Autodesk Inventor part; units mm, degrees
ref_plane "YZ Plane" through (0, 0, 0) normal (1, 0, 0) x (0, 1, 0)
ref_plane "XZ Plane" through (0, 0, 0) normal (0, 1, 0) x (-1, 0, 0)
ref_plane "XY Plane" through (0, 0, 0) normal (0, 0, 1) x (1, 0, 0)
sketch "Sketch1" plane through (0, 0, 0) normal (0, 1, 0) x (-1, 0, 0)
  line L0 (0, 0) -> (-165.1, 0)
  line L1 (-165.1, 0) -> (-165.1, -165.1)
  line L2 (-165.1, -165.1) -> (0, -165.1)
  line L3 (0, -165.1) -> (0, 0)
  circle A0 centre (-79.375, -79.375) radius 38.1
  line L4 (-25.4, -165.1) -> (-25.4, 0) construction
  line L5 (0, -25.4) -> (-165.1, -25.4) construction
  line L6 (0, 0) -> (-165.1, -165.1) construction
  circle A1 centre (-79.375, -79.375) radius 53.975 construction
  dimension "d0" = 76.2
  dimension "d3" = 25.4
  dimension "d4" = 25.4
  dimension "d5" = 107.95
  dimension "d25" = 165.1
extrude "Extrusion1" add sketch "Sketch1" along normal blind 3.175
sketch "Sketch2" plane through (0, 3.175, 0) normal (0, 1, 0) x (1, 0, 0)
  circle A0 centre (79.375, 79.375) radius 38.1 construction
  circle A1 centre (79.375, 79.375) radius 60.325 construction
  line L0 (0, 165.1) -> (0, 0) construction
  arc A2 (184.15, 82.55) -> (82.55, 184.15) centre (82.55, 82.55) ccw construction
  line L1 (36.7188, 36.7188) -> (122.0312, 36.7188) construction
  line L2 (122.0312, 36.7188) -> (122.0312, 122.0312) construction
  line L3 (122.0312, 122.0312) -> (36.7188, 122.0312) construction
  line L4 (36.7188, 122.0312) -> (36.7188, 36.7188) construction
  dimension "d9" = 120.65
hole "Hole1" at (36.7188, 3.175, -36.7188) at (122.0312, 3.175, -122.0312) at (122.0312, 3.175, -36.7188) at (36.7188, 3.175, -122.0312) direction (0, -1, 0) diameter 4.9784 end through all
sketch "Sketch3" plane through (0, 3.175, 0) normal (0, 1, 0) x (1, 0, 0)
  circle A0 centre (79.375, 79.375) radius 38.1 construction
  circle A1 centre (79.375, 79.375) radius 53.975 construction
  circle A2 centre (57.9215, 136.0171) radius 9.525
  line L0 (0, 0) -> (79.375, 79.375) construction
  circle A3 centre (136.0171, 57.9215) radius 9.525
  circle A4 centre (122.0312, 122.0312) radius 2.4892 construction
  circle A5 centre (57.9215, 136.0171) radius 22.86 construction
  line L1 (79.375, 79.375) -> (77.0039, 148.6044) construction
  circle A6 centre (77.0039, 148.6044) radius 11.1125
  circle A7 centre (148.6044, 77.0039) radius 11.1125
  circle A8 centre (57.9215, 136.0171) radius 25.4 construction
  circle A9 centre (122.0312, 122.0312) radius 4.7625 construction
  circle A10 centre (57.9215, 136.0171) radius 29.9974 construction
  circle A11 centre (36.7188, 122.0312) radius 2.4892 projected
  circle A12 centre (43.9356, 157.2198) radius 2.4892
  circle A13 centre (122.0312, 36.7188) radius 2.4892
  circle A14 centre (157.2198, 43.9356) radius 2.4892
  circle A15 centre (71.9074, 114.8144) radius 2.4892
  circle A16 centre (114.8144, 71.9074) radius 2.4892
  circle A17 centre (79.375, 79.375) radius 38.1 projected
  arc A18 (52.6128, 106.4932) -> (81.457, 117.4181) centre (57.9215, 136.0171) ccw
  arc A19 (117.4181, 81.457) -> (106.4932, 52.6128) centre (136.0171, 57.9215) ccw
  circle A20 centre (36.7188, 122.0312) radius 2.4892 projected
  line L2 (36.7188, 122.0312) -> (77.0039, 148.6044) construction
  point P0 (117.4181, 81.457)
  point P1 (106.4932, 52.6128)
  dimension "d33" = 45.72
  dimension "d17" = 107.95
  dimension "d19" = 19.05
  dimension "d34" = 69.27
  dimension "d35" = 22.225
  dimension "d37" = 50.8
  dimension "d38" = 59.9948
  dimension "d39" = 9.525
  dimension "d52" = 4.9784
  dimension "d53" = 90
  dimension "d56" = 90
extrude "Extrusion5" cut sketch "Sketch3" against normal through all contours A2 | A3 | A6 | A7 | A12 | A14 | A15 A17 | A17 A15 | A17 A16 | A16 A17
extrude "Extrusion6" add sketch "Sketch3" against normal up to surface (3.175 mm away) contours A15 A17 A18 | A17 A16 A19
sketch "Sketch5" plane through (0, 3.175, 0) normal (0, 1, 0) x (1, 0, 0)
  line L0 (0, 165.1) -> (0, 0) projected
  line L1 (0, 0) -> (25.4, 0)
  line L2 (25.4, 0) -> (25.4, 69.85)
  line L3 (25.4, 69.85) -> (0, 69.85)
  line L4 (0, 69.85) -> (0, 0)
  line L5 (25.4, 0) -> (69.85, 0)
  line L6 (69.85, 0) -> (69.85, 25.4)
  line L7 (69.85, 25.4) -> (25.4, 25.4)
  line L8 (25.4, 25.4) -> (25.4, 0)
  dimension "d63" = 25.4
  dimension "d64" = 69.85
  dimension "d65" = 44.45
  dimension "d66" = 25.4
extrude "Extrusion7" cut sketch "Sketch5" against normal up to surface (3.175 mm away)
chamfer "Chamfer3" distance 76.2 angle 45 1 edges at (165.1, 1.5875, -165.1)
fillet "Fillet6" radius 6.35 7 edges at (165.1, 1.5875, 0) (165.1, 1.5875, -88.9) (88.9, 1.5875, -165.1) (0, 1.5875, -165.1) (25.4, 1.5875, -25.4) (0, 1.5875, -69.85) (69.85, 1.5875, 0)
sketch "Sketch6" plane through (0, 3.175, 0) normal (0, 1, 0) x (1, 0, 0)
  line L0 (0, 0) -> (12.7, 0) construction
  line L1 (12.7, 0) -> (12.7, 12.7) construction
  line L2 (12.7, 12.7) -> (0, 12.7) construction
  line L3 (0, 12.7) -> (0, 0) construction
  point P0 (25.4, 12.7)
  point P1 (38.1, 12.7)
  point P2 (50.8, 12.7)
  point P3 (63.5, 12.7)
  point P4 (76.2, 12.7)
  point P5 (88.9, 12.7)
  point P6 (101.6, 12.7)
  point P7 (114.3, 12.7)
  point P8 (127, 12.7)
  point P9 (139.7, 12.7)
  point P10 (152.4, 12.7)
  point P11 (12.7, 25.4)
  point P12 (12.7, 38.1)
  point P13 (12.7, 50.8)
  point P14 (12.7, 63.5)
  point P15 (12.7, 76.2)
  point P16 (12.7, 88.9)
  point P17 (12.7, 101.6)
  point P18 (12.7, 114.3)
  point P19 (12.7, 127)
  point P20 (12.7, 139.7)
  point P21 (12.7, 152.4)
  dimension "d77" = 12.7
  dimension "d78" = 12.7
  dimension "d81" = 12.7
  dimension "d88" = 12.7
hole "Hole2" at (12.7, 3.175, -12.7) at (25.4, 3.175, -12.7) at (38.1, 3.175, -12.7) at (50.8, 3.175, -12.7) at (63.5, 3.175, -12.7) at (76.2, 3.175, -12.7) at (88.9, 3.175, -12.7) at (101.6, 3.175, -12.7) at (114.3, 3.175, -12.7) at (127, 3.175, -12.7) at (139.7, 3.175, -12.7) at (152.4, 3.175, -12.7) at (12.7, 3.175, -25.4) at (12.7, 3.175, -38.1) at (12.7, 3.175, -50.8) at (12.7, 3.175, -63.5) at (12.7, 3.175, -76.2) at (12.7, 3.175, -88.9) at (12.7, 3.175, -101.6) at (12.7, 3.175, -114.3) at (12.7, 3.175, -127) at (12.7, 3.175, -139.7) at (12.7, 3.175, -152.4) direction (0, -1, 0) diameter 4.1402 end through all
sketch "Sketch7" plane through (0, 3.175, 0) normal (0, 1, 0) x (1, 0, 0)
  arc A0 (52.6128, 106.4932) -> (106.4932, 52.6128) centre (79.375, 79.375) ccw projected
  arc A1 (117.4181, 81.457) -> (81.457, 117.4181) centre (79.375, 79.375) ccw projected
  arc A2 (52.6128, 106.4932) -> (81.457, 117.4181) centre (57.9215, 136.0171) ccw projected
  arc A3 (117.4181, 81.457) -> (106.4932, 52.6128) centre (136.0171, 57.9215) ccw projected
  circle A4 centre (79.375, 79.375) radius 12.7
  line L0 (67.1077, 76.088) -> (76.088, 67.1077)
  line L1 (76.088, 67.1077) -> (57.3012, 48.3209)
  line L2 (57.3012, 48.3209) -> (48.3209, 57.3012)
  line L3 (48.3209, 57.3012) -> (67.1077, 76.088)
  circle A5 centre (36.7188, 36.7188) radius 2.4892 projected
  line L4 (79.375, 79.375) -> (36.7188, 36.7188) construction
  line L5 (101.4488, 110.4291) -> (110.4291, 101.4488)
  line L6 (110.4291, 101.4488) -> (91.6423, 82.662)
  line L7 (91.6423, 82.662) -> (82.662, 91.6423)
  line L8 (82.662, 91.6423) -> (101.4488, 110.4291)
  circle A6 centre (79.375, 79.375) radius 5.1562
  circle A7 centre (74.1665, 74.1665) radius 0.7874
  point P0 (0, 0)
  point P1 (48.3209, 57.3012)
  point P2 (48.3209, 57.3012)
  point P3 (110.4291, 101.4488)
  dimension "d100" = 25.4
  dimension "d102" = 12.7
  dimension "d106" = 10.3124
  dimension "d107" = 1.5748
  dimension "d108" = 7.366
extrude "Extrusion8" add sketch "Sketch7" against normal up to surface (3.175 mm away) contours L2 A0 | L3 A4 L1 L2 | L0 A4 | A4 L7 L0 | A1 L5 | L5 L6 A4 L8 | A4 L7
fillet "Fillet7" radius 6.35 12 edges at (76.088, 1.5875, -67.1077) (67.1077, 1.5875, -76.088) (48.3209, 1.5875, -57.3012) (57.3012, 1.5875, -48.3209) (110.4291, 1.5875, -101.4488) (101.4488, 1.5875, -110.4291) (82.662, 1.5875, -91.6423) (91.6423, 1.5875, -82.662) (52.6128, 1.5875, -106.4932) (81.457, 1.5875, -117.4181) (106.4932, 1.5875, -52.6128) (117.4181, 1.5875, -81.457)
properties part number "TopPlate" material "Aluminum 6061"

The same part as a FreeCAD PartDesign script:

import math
import FreeCAD as App
import Part
import Sketcher
from FreeCAD import Vector
Q = App.Units.Quantity


def edges_at(feature, points):
    """Names of the edges that pass closest to the given points."""
    edges = feature.Shape.Edges
    near = lambda p: min(range(len(edges)), key=lambda i: edges[i].distToShape(Part.Vertex(*p))[0])
    return sorted({f"Edge{near(p) + 1}" for p in points})

doc = App.newDocument("Part")
params = doc.addObject("Spreadsheet::Sheet", "Params")
for row, (alias, value) in enumerate([
    ("sketch1_diameter", "3 in"),
    ("sketch1_width", "6.5 in"),
    ("pad1_length", "0.125 in"),
    ("sketch2_diameter", "0.196 in"),
    ("hole_diameter", "0.196 in"),
    ("sketch3_diameter", "0.75 in"),
    ("sketch3_diameter2", "0.875 in"),
    ("sketch3_diameter3", "0.196 in"),
    ("sketch4_radius", "0.098 in"),
    ("sketch4_radius2", "1.181 in"),
    ("sketch4_radius3", "1.5 in"),
    ("sketch4_height", "0.209 in"),
    ("pad2_length", "0.125 in"),
    ("sketch5_width", "1 in"),
    ("sketch5_width2", "2.75 in"),
    ("pocket2_length", "0.125 in"),
    ("chamfer_size", "3 in"),
    ("fillet_radius", "0.25 in"),
    ("sketch6_diameter", "0.163 in"),
    ("hole2_diameter", "0.163 in"),
    ("sketch7_radius", "0.5 in"),
    ("sketch7_diameter", "0.406 in"),
    ("sketch7_diameter2", "0.062 in"),
    ("sketch7_radius2", "1.5 in"),
    ("sketch7_length", "1.046 in"),
    ("pad3_length", "0.125 in"),
    ("fillet2_radius", "0.25 in"),
], start=1):
    params.set(f"A{row}", alias)
    params.set(f"B{row}", "=" + value)
    params.setAlias(f"B{row}", alias)

body = doc.addObject("PartDesign::Body", "Body")

# Sketch on XZ plane
sketch1 = body.newObject("Sketcher::SketchObject", "Sketch")
sketch1.AttachmentSupport = (doc.getObject("XZ_Plane"), [""])
sketch1.MapMode = "FlatFace"
sketch1.addGeometry([
    Part.LineSegment(Vector(0, -165, 0), Vector(0, 0, 0)),  # 0
    Part.LineSegment(Vector(0, 0, 0), Vector(165, 0, 0)),  # 1
    Part.LineSegment(Vector(165, 0, 0), Vector(165, -165, 0)),  # 2
    Part.LineSegment(Vector(165, -165, 0), Vector(0, -165, 0)),  # 3
    Part.Circle(Vector(79, -79, 0), Vector(0, 0, 1), 38),  # 4
], False)
sketch1.addConstraint([
    Sketcher.Constraint("Coincident", 0, 2, 1, 1),
    Sketcher.Constraint("Coincident", 1, 2, 2, 1),
    Sketcher.Constraint("Coincident", 2, 2, 3, 1),
    Sketcher.Constraint("Coincident", 3, 2, 0, 1),
    Sketcher.Constraint("Vertical", 0),
    Sketcher.Constraint("Horizontal", 1),
    Sketcher.Constraint("Vertical", 2),
    Sketcher.Constraint("Horizontal", 3),
    Sketcher.Constraint("Coincident", 0, 2, -1, 1),
    Sketcher.Constraint("Equal", 3, 0),
    Sketcher.Constraint("Diameter", 4, Q("3 in")),
    Sketcher.Constraint("DistanceX", 1, 1, 1, 2, Q("6.5 in")),
    Sketcher.Constraint("DistanceX", -1, 1, 4, 3, Q("3.125 in")),
    Sketcher.Constraint("DistanceY", 4, 3, -1, 1, Q("3.125 in")),
])
sketch1.setExpression("Constraints[10]", "Params.sketch1_diameter")
sketch1.setExpression("Constraints[11]", "Params.sketch1_width")
pad1 = body.newObject("PartDesign::Pad", "Pad")
pad1.Profile = sketch1
pad1.setExpression("Length", "Params.pad1_length")
pad1.Reversed = True

# Sketch on XZ plane
sketch2 = body.newObject("Sketcher::SketchObject", "Sketch001")
sketch2.AttachmentSupport = (doc.getObject("XZ_Plane"), [""])
sketch2.MapMode = "FlatFace"
sketch2.AttachmentOffset = App.Placement(Vector(0, 0, -0.125 * 25.4), App.Rotation())
sketch2.addGeometry([
    Part.Circle(Vector(36.7, -36.7, 0), Vector(0, 0, 1), 2.5),
    Part.Circle(Vector(122, -122, 0), Vector(0, 0, 1), 2.5),
    Part.Circle(Vector(122, -36.7, 0), Vector(0, 0, 1), 2.5),
    Part.Circle(Vector(36.7, -122, 0), Vector(0, 0, 1), 2.5),
], False)
sketch2.addConstraint([
    Sketcher.Constraint("Equal", 0, 1),
    Sketcher.Constraint("Equal", 1, 2),
    Sketcher.Constraint("Equal", 2, 3),
    Sketcher.Constraint("Horizontal", 0, 3, 2, 3),
    Sketcher.Constraint("Horizontal", 1, 3, 3, 3),
    Sketcher.Constraint("Vertical", 1, 3, 2, 3),
    Sketcher.Constraint("Vertical", 0, 3, 3, 3),
    Sketcher.Constraint("Diameter", 0, Q("0.196 in")),
    Sketcher.Constraint("DistanceX", -1, 1, 0, 3, Q("36.7188 mm")),
    Sketcher.Constraint("DistanceY", 0, 3, -1, 1, Q("36.7188 mm")),
    Sketcher.Constraint("DistanceX", -1, 1, 1, 3, Q("122.0312 mm")),
    Sketcher.Constraint("DistanceY", 1, 3, -1, 1, Q("122.0312 mm")),
])
sketch2.setExpression("Constraints[7]", "Params.sketch2_diameter")
doc.recompute()
hole = body.newObject("PartDesign::Hole", "Hole")
hole.Profile = sketch2
hole.ThreadType = "None"
hole.setExpression("Diameter", "Params.hole_diameter")
hole.DepthType = "ThroughAll"
hole.Reversed = True

# Sketch on XZ plane
sketch3 = body.newObject("Sketcher::SketchObject", "Sketch002")
sketch3.AttachmentSupport = (doc.getObject("XZ_Plane"), [""])
sketch3.MapMode = "FlatFace"
sketch3.AttachmentOffset = App.Placement(Vector(0, 0, -0.125 * 25.4), App.Rotation())
sketch3.addGeometry([
    Part.Circle(Vector(57.9, -136, 0), Vector(0, 0, 1), 9.5),  # 0
    Part.Circle(Vector(136, -57.9, 0), Vector(0, 0, 1), 9.5),  # 1
    Part.Circle(Vector(77, -148.6, 0), Vector(0, 0, 1), 11.1),  # 2
    Part.Circle(Vector(148.6, -77, 0), Vector(0, 0, 1), 11.1),  # 3
    Part.Circle(Vector(43.9, -157.2, 0), Vector(0, 0, 1), 2.5),  # 4
    Part.Circle(Vector(157.2, -43.9, 0), Vector(0, 0, 1), 2.5),  # 5
    Part.Circle(Vector(71.9, -114.8, 0), Vector(0, 0, 1), 2.5),  # 6
    Part.Circle(Vector(114.8, -71.9, 0), Vector(0, 0, 1), 2.5),  # 7
], False)
sketch3.addConstraint([
    Sketcher.Constraint("Equal", 0, 1),
    Sketcher.Constraint("Equal", 2, 3),
    Sketcher.Constraint("Equal", 4, 5),
    Sketcher.Constraint("Equal", 5, 6),
    Sketcher.Constraint("Equal", 6, 7),
    Sketcher.Constraint("Diameter", 0, Q("0.75 in")),
    Sketcher.Constraint("Diameter", 2, Q("0.875 in")),
    Sketcher.Constraint("Diameter", 4, Q("0.196 in")),
    Sketcher.Constraint("DistanceX", 4, 3, 5, 3, Q("4.46 in")),
    Sketcher.Constraint("DistanceY", 4, 3, 5, 3, Q("4.46 in")),
    Sketcher.Constraint("DistanceY", 0, 3, -1, 1, Q("5.355 in")),
    Sketcher.Constraint("DistanceX", -1, 1, 1, 3, Q("5.355 in")),
    Sketcher.Constraint("DistanceX", -1, 1, 6, 3, Q("2.831 in")),
    Sketcher.Constraint("DistanceY", 7, 3, -1, 1, Q("2.831 in")),
    Sketcher.Constraint("DistanceY", 2, 3, 1, 3, Q("3.5702 in")),
    Sketcher.Constraint("DistanceX", 0, 3, 3, 3, Q("3.5702 in")),
    Sketcher.Constraint("DistanceX", 4, 3, 2, 3, Q("1.3019 in")),
    Sketcher.Constraint("DistanceY", 4, 3, 2, 3, Q("0.3392 in")),
    Sketcher.Constraint("DistanceY", 4, 3, 3, 3, Q("3.1581 in")),
    Sketcher.Constraint("DistanceX", 3, 3, 5, 3, Q("0.3392 in")),
    Sketcher.Constraint("DistanceY", 4, 3, 6, 3, Q("1.6695 in")),
    Sketcher.Constraint("DistanceX", 7, 3, 5, 3, Q("1.6695 in")),
    Sketcher.Constraint("DistanceX", -1, 1, 0, 3, Q("57.9215 mm")),
    Sketcher.Constraint("DistanceY", 1, 3, -1, 1, Q("57.9215 mm")),
])
sketch3.setExpression("Constraints[5]", "Params.sketch3_diameter")
sketch3.setExpression("Constraints[6]", "Params.sketch3_diameter2")
sketch3.setExpression("Constraints[7]", "Params.sketch3_diameter3")
pocket1 = body.newObject("PartDesign::Pocket", "Pocket")
pocket1.Profile = sketch3
pocket1.Type = "ThroughAll"
pocket1.Reversed = True

# Sketch on XZ plane
sketch4 = body.newObject("Sketcher::SketchObject", "Sketch003")
sketch4.AttachmentSupport = (doc.getObject("XZ_Plane"), [""])
sketch4.MapMode = "FlatFace"
sketch4.AttachmentOffset = App.Placement(Vector(0, 0, -0.125 * 25.4), App.Rotation())
sketch4.addGeometry([
    Part.ArcOfCircle(Part.Circle(Vector(71.9, -114.8, 0), Vector(0, 0, 1), 2.5), math.radians(-60), math.radians(216)),  # 0
    Part.ArcOfCircle(Part.Circle(Vector(79.4, -79.4, 0), Vector(0, 0, 1), 38.1), math.radians(-135), math.radians(-104)),  # 1
    Part.ArcOfCircle(Part.Circle(Vector(57.9, -136, 0), Vector(0, 0, 1), 30), math.radians(38), math.radians(100)),  # 2
    Part.ArcOfCircle(Part.Circle(Vector(79.4, -79.4, 0), Vector(0, 0, 1), 38.1), math.radians(-99.39), math.radians(-86.87)),  # 3
    Part.ArcOfCircle(Part.Circle(Vector(79.4, -79.4, 0), Vector(0, 0, 1), 38.1), math.radians(-3.13), math.radians(9.39)),  # 4
    Part.ArcOfCircle(Part.Circle(Vector(136, -57.9, 0), Vector(0, 0, 1), 30), math.radians(170), math.radians(232)),  # 5
    Part.ArcOfCircle(Part.Circle(Vector(79.4, -79.4, 0), Vector(0, 0, 1), 38.1), math.radians(14), math.radians(45)),  # 6
    Part.ArcOfCircle(Part.Circle(Vector(114.8, -71.9, 0), Vector(0, 0, 1), 2.5), math.radians(54), math.radians(330)),  # 7
], False)
sketch4.addConstraint([
    Sketcher.Constraint("Coincident", 0, 2, 1, 2),
    Sketcher.Constraint("Coincident", 1, 1, 2, 2),
    Sketcher.Constraint("Coincident", 2, 1, 3, 2),
    Sketcher.Constraint("Coincident", 3, 1, 0, 1),
    Sketcher.Constraint("Coincident", 4, 1, 5, 2),
    Sketcher.Constraint("Coincident", 5, 1, 6, 2),
    Sketcher.Constraint("Coincident", 6, 1, 7, 1),
    Sketcher.Constraint("Coincident", 7, 2, 4, 2),
    Sketcher.Constraint("Coincident", 3, 3, 1, 3),
    Sketcher.Constraint("Coincident", 4, 3, 1, 3),
    Sketcher.Constraint("Coincident", 6, 3, 1, 3),
    Sketcher.Constraint("Equal", 1, 3),
    Sketcher.Constraint("Equal", 3, 4),
    Sketcher.Constraint("Equal", 2, 5),
    Sketcher.Constraint("Equal", 4, 6),
    Sketcher.Constraint("Equal", 0, 7),
    Sketcher.Constraint("Radius", 0, Q("0.098 in")),
    Sketcher.Constraint("Radius", 2, Q("1.181 in")),
    Sketcher.Constraint("Radius", 1, Q("1.5 in")),
    Sketcher.Constraint("DistanceY", 2, 3, 1, 3, Q("2.23 in")),
    Sketcher.Constraint("DistanceX", 1, 3, 5, 3, Q("2.23 in")),
    Sketcher.Constraint("DistanceX", -1, 1, 0, 3, Q("2.831 in")),
    Sketcher.Constraint("DistanceX", -1, 1, 1, 3, Q("3.125 in")),
    Sketcher.Constraint("DistanceY", 1, 3, -1, 1, Q("3.125 in")),
    Sketcher.Constraint("DistanceY", 7, 3, -1, 1, Q("2.831 in")),
    Sketcher.Constraint("DistanceX", 1, 1, 2, 3, Q("0.209 in")),
    Sketcher.Constraint("DistanceY", 5, 3, 5, 1, Q("0.209 in")),
    Sketcher.Constraint("DistanceY", 0, 2, -1, 1, Q("4.5778 in")),
    Sketcher.Constraint("DistanceX", -1, 1, 6, 1, Q("4.5778 in")),
])
sketch4.setExpression("Constraints[16]", "Params.sketch4_radius")
sketch4.setExpression("Constraints[17]", "Params.sketch4_radius2")
sketch4.setExpression("Constraints[18]", "Params.sketch4_radius3")
sketch4.setExpression("Constraints[26]", "Params.sketch4_height")
pad2 = body.newObject("PartDesign::Pad", "Pad001")
pad2.Profile = sketch4
pad2.setExpression("Length", "Params.pad2_length")

# Sketch on XZ plane
sketch5 = body.newObject("Sketcher::SketchObject", "Sketch004")
sketch5.AttachmentSupport = (doc.getObject("XZ_Plane"), [""])
sketch5.MapMode = "FlatFace"
sketch5.AttachmentOffset = App.Placement(Vector(0, 0, -0.125 * 25.4), App.Rotation())
sketch5.addGeometry([
    Part.LineSegment(Vector(25, -70, 0), Vector(0, -70, 0)),  # 0
    Part.LineSegment(Vector(0, -70, 0), Vector(0, 0, 0)),  # 1
    Part.LineSegment(Vector(0, 0, 0), Vector(70, 0, 0)),  # 2
    Part.LineSegment(Vector(70, 0, 0), Vector(70, -25, 0)),  # 3
    Part.LineSegment(Vector(70, -25, 0), Vector(25, -25, 0)),  # 4
    Part.LineSegment(Vector(25, -25, 0), Vector(25, -70, 0)),  # 5
], False)
sketch5.addConstraint([
    Sketcher.Constraint("Coincident", 0, 2, 1, 1),
    Sketcher.Constraint("Coincident", 1, 2, 2, 1),
    Sketcher.Constraint("Coincident", 2, 2, 3, 1),
    Sketcher.Constraint("Coincident", 3, 2, 4, 1),
    Sketcher.Constraint("Coincident", 4, 2, 5, 1),
    Sketcher.Constraint("Coincident", 5, 2, 0, 1),
    Sketcher.Constraint("Horizontal", 0),
    Sketcher.Constraint("Vertical", 1),
    Sketcher.Constraint("Horizontal", 2),
    Sketcher.Constraint("Vertical", 3),
    Sketcher.Constraint("Horizontal", 4),
    Sketcher.Constraint("Vertical", 5),
    Sketcher.Constraint("Coincident", 1, 2, -1, 1),
    Sketcher.Constraint("Equal", 2, 1),
    Sketcher.Constraint("Equal", 0, 3),
    Sketcher.Constraint("DistanceX", 0, 2, 0, 1, Q("1 in")),
    Sketcher.Constraint("DistanceX", 2, 1, 2, 2, Q("2.75 in")),
])
sketch5.setExpression("Constraints[15]", "Params.sketch5_width")
sketch5.setExpression("Constraints[16]", "Params.sketch5_width2")
pocket2 = body.newObject("PartDesign::Pocket", "Pocket001")
pocket2.Profile = sketch5
pocket2.setExpression("Length", "Params.pocket2_length")
pocket2.Reversed = True
doc.recompute()

chamfer = body.newObject("PartDesign::Chamfer", "Chamfer")
chamfer.Base = (pocket2, edges_at(pocket2, [(165.1, 1.587, -165.1)]))
chamfer.setExpression("Size", "Params.chamfer_size")
doc.recompute()

fillet = body.newObject("PartDesign::Fillet", "Fillet")
fillet.Base = (chamfer, edges_at(chamfer, [
    (165.1, 1.587, 0),
    (165.1, 1.587, -88.9),
    (88.9, 1.587, -165.1),
    (0, 1.587, -165.1),
    (25.4, 1.587, -25.4),
    (0, 1.587, -69.85),
    (69.85, 1.587, 0),
]))
fillet.setExpression("Radius", "Params.fillet_radius")

# Sketch on XZ plane
sketch6 = body.newObject("Sketcher::SketchObject", "Sketch005")
sketch6.AttachmentSupport = (doc.getObject("XZ_Plane"), [""])
sketch6.MapMode = "FlatFace"
sketch6.AttachmentOffset = App.Placement(Vector(0, 0, -0.125 * 25.4), App.Rotation())
sketch6.addGeometry([
    Part.Circle(Vector(12.7, -12.7, 0), Vector(0, 0, 1), 2.1),  # 0
    Part.Circle(Vector(25.4, -12.7, 0), Vector(0, 0, 1), 2.1),  # 1
    Part.Circle(Vector(38.1, -12.7, 0), Vector(0, 0, 1), 2.1),  # 2
    Part.Circle(Vector(50.8, -12.7, 0), Vector(0, 0, 1), 2.1),  # 3
    Part.Circle(Vector(63.5, -12.7, 0), Vector(0, 0, 1), 2.1),  # 4
    Part.Circle(Vector(76.2, -12.7, 0), Vector(0, 0, 1), 2.1),  # 5
    Part.Circle(Vector(88.9, -12.7, 0), Vector(0, 0, 1), 2.1),  # 6
    Part.Circle(Vector(101.6, -12.7, 0), Vector(0, 0, 1), 2.1),  # 7
    Part.Circle(Vector(114.3, -12.7, 0), Vector(0, 0, 1), 2.1),  # 8
    Part.Circle(Vector(127, -12.7, 0), Vector(0, 0, 1), 2.1),  # 9
    Part.Circle(Vector(139.7, -12.7, 0), Vector(0, 0, 1), 2.1),  # 10
    Part.Circle(Vector(152.4, -12.7, 0), Vector(0, 0, 1), 2.1),  # 11
    Part.Circle(Vector(12.7, -25.4, 0), Vector(0, 0, 1), 2.1),  # 12
    Part.Circle(Vector(12.7, -38.1, 0), Vector(0, 0, 1), 2.1),  # 13
    Part.Circle(Vector(12.7, -50.8, 0), Vector(0, 0, 1), 2.1),  # 14
    Part.Circle(Vector(12.7, -63.5, 0), Vector(0, 0, 1), 2.1),  # 15
    Part.Circle(Vector(12.7, -76.2, 0), Vector(0, 0, 1), 2.1),  # 16
    Part.Circle(Vector(12.7, -88.9, 0), Vector(0, 0, 1), 2.1),  # 17
    Part.Circle(Vector(12.7, -101.6, 0), Vector(0, 0, 1), 2.1),  # 18
    Part.Circle(Vector(12.7, -114.3, 0), Vector(0, 0, 1), 2.1),  # 19
    Part.Circle(Vector(12.7, -127, 0), Vector(0, 0, 1), 2.1),  # 20
    Part.Circle(Vector(12.7, -139.7, 0), Vector(0, 0, 1), 2.1),  # 21
    Part.Circle(Vector(12.7, -152.4, 0), Vector(0, 0, 1), 2.1),  # 22
], False)
sketch6.addConstraint([
    Sketcher.Constraint("Equal", 0, 1),
    Sketcher.Constraint("Equal", 1, 2),
    Sketcher.Constraint("Equal", 2, 3),
    Sketcher.Constraint("Equal", 3, 4),
    Sketcher.Constraint("Equal", 4, 5),
    Sketcher.Constraint("Equal", 5, 6),
    Sketcher.Constraint("Equal", 6, 7),
    Sketcher.Constraint("Equal", 7, 8),
    Sketcher.Constraint("Equal", 8, 9),
    Sketcher.Constraint("Equal", 9, 10),
    Sketcher.Constraint("Equal", 10, 11),
    Sketcher.Constraint("Equal", 11, 12),
    Sketcher.Constraint("Equal", 12, 13),
    Sketcher.Constraint("Equal", 13, 14),
    Sketcher.Constraint("Equal", 14, 15),
    Sketcher.Constraint("Equal", 15, 16),
    Sketcher.Constraint("Equal", 16, 17),
    Sketcher.Constraint("Equal", 17, 18),
    Sketcher.Constraint("Equal", 18, 19),
    Sketcher.Constraint("Equal", 19, 20),
    Sketcher.Constraint("Equal", 20, 21),
    Sketcher.Constraint("Equal", 21, 22),
    Sketcher.Constraint("Horizontal", 0, 3, 1, 3),
    Sketcher.Constraint("Horizontal", 1, 3, 2, 3),
    Sketcher.Constraint("Horizontal", 2, 3, 3, 3),
    Sketcher.Constraint("Horizontal", 3, 3, 4, 3),
    Sketcher.Constraint("Horizontal", 4, 3, 5, 3),
    Sketcher.Constraint("Horizontal", 5, 3, 6, 3),
    Sketcher.Constraint("Horizontal", 6, 3, 7, 3),
    Sketcher.Constraint("Horizontal", 7, 3, 8, 3),
    Sketcher.Constraint("Horizontal", 8, 3, 9, 3),
    Sketcher.Constraint("Horizontal", 9, 3, 10, 3),
    Sketcher.Constraint("Horizontal", 10, 3, 11, 3),
    Sketcher.Constraint("Vertical", 0, 3, 12, 3),
    Sketcher.Constraint("Vertical", 12, 3, 13, 3),
    Sketcher.Constraint("Vertical", 13, 3, 14, 3),
    Sketcher.Constraint("Vertical", 14, 3, 15, 3),
    Sketcher.Constraint("Vertical", 15, 3, 16, 3),
    Sketcher.Constraint("Vertical", 16, 3, 17, 3),
    Sketcher.Constraint("Vertical", 17, 3, 18, 3),
    Sketcher.Constraint("Vertical", 18, 3, 19, 3),
    Sketcher.Constraint("Vertical", 19, 3, 20, 3),
    Sketcher.Constraint("Vertical", 20, 3, 21, 3),
    Sketcher.Constraint("Vertical", 21, 3, 22, 3),
    Sketcher.Constraint("Diameter", 0, Q("0.163 in")),
    Sketcher.Constraint("DistanceX", -1, 1, 1, 3, Q("1 in")),
    Sketcher.Constraint("DistanceX", -1, 1, 3, 3, Q("2 in")),
    Sketcher.Constraint("DistanceX", -1, 1, 5, 3, Q("3 in")),
    Sketcher.Constraint("DistanceX", -1, 1, 7, 3, Q("4 in")),
    Sketcher.Constraint("DistanceX", -1, 1, 9, 3, Q("5 in")),
    Sketcher.Constraint("DistanceX", -1, 1, 11, 3, Q("6 in")),
    Sketcher.Constraint("DistanceY", 12, 3, -1, 1, Q("1 in")),
    Sketcher.Constraint("DistanceY", 14, 3, -1, 1, Q("2 in")),
    Sketcher.Constraint("DistanceY", 16, 3, -1, 1, Q("3 in")),
    Sketcher.Constraint("DistanceY", 18, 3, -1, 1, Q("4 in")),
    Sketcher.Constraint("DistanceY", 20, 3, -1, 1, Q("5 in")),
    Sketcher.Constraint("DistanceY", 22, 3, -1, 1, Q("6 in")),
    Sketcher.Constraint("DistanceX", 0, 3, 2, 3, Q("1 in")),
    Sketcher.Constraint("DistanceX", 2, 3, 4, 3, Q("1 in")),
    Sketcher.Constraint("DistanceX", 4, 3, 6, 3, Q("1 in")),
    Sketcher.Constraint("DistanceX", 6, 3, 8, 3, Q("1 in")),
    Sketcher.Constraint("DistanceX", 8, 3, 10, 3, Q("1 in")),
    Sketcher.Constraint("DistanceY", 13, 3, 0, 3, Q("1 in")),
    Sketcher.Constraint("DistanceY", 15, 3, 13, 3, Q("1 in")),
    Sketcher.Constraint("DistanceY", 17, 3, 15, 3, Q("1 in")),
    Sketcher.Constraint("DistanceY", 19, 3, 17, 3, Q("1 in")),
    Sketcher.Constraint("DistanceY", 21, 3, 19, 3, Q("1 in")),
    Sketcher.Constraint("DistanceX", -1, 1, 0, 3, Q("0.5 in")),
    Sketcher.Constraint("DistanceY", 0, 3, -1, 1, Q("0.5 in")),
])
sketch6.setExpression("Constraints[44]", "Params.sketch6_diameter")
doc.recompute()
hole2 = body.newObject("PartDesign::Hole", "Hole001")
hole2.Profile = sketch6
hole2.ThreadType = "None"
hole2.setExpression("Diameter", "Params.hole2_diameter")
hole2.DepthType = "ThroughAll"
hole2.Reversed = True

# Sketch on XZ plane
sketch7 = body.newObject("Sketcher::SketchObject", "Sketch006")
sketch7.AttachmentSupport = (doc.getObject("XZ_Plane"), [""])
sketch7.MapMode = "FlatFace"
sketch7.AttachmentOffset = App.Placement(Vector(0, 0, -0.125 * 25.4), App.Rotation())
sketch7.addGeometry([
    Part.ArcOfCircle(Part.Circle(Vector(79.4, -79.4, 0), Vector(0, 0, 1), 38.1), math.radians(125.41), math.radians(144.59)),  # 0
    Part.LineSegment(Vector(57.3, -48.3, 0), Vector(76.1, -67.1, 0)),  # 1
    Part.ArcOfCircle(Part.Circle(Vector(79.4, -79.4, 0), Vector(0, 0, 1), 12.7), math.radians(-15), math.radians(105)),  # 2
    Part.LineSegment(Vector(91.6, -82.7, 0), Vector(110.4, -101.4, 0)),  # 3
    Part.ArcOfCircle(Part.Circle(Vector(79.4, -79.4, 0), Vector(0, 0, 1), 38.1), math.radians(-54.59), math.radians(-35.41)),  # 4
    Part.LineSegment(Vector(101.4, -110.4, 0), Vector(82.7, -91.6, 0)),  # 5
    Part.ArcOfCircle(Part.Circle(Vector(79.4, -79.4, 0), Vector(0, 0, 1), 12.7), math.radians(165), math.radians(285)),  # 6
    Part.LineSegment(Vector(67.1, -76.1, 0), Vector(48.3, -57.3, 0)),  # 7
    Part.Circle(Vector(79.4, -79.4, 0), Vector(0, 0, 1), 5.2),  # 8
    Part.Circle(Vector(74.2, -74.2, 0), Vector(0, 0, 1), 0.8),  # 9
], False)
sketch7.addConstraint([
    Sketcher.Constraint("Coincident", 0, 1, 1, 1),
    Sketcher.Constraint("Coincident", 1, 2, 2, 2),
    Sketcher.Constraint("Coincident", 2, 1, 3, 1),
    Sketcher.Constraint("Coincident", 3, 2, 4, 2),
    Sketcher.Constraint("Coincident", 4, 1, 5, 1),
    Sketcher.Constraint("Coincident", 5, 2, 6, 2),
    Sketcher.Constraint("Coincident", 6, 1, 7, 1),
    Sketcher.Constraint("Coincident", 7, 2, 0, 2),
    Sketcher.Constraint("Coincident", 2, 3, 0, 3),
    Sketcher.Constraint("Coincident", 4, 3, 0, 3),
    Sketcher.Constraint("Coincident", 6, 3, 0, 3),
    Sketcher.Constraint("Coincident", 8, 3, 0, 3),
    Sketcher.Constraint("Equal", 0, 4),
    Sketcher.Constraint("Equal", 2, 6),
    Sketcher.Constraint("Parallel", 1, 3),
    Sketcher.Constraint("Parallel", 3, 5),
    Sketcher.Constraint("Parallel", 5, 7),
    Sketcher.Constraint("Equal", 1, 3),
    Sketcher.Constraint("Equal", 3, 5),
    Sketcher.Constraint("Equal", 5, 7),
    Sketcher.Constraint("Radius", 2, Q("0.5 in")),
    Sketcher.Constraint("Diameter", 8, Q("0.406 in")),
    Sketcher.Constraint("Diameter", 9, Q("0.062 in")),
    Sketcher.Constraint("Radius", 0, Q("1.5 in")),
    Sketcher.Constraint("Angle", 1, Q("-45 deg")),
    Sketcher.Constraint("Distance", 1, Q("1.046 in")),
    Sketcher.Constraint("DistanceX", -1, 1, 0, 3, Q("3.125 in")),
    Sketcher.Constraint("DistanceY", 0, 3, -1, 1, Q("3.125 in")),
    Sketcher.Constraint("DistanceX", 0, 1, 9, 3, Q("0.664 in")),
    Sketcher.Constraint("DistanceY", 9, 3, 7, 2, Q("0.664 in")),
])
sketch7.setExpression("Constraints[20]", "Params.sketch7_radius")
sketch7.setExpression("Constraints[21]", "Params.sketch7_diameter")
sketch7.setExpression("Constraints[22]", "Params.sketch7_diameter2")
sketch7.setExpression("Constraints[23]", "Params.sketch7_radius2")
sketch7.setExpression("Constraints[25]", "Params.sketch7_length")
pad3 = body.newObject("PartDesign::Pad", "Pad002")
pad3.Profile = sketch7
pad3.setExpression("Length", "Params.pad3_length")
doc.recompute()

fillet2 = body.newObject("PartDesign::Fillet", "Fillet001")
fillet2.Base = (pad3, edges_at(pad3, [
    (76.088, 1.587, -67.108),
    (67.108, 1.587, -76.088),
    (48.321, 1.587, -57.301),
    (57.301, 1.587, -48.321),
    (110.429, 1.587, -101.449),
    (101.449, 1.587, -110.429),
    (82.662, 1.587, -91.642),
    (91.642, 1.587, -82.662),
    (52.613, 1.587, -106.493),
    (81.457, 1.587, -117.418),
    (106.493, 1.587, -52.613),
    (117.418, 1.587, -81.457),
]))
fillet2.setExpression("Radius", "Params.fillet2_radius")

doc.recompute()
